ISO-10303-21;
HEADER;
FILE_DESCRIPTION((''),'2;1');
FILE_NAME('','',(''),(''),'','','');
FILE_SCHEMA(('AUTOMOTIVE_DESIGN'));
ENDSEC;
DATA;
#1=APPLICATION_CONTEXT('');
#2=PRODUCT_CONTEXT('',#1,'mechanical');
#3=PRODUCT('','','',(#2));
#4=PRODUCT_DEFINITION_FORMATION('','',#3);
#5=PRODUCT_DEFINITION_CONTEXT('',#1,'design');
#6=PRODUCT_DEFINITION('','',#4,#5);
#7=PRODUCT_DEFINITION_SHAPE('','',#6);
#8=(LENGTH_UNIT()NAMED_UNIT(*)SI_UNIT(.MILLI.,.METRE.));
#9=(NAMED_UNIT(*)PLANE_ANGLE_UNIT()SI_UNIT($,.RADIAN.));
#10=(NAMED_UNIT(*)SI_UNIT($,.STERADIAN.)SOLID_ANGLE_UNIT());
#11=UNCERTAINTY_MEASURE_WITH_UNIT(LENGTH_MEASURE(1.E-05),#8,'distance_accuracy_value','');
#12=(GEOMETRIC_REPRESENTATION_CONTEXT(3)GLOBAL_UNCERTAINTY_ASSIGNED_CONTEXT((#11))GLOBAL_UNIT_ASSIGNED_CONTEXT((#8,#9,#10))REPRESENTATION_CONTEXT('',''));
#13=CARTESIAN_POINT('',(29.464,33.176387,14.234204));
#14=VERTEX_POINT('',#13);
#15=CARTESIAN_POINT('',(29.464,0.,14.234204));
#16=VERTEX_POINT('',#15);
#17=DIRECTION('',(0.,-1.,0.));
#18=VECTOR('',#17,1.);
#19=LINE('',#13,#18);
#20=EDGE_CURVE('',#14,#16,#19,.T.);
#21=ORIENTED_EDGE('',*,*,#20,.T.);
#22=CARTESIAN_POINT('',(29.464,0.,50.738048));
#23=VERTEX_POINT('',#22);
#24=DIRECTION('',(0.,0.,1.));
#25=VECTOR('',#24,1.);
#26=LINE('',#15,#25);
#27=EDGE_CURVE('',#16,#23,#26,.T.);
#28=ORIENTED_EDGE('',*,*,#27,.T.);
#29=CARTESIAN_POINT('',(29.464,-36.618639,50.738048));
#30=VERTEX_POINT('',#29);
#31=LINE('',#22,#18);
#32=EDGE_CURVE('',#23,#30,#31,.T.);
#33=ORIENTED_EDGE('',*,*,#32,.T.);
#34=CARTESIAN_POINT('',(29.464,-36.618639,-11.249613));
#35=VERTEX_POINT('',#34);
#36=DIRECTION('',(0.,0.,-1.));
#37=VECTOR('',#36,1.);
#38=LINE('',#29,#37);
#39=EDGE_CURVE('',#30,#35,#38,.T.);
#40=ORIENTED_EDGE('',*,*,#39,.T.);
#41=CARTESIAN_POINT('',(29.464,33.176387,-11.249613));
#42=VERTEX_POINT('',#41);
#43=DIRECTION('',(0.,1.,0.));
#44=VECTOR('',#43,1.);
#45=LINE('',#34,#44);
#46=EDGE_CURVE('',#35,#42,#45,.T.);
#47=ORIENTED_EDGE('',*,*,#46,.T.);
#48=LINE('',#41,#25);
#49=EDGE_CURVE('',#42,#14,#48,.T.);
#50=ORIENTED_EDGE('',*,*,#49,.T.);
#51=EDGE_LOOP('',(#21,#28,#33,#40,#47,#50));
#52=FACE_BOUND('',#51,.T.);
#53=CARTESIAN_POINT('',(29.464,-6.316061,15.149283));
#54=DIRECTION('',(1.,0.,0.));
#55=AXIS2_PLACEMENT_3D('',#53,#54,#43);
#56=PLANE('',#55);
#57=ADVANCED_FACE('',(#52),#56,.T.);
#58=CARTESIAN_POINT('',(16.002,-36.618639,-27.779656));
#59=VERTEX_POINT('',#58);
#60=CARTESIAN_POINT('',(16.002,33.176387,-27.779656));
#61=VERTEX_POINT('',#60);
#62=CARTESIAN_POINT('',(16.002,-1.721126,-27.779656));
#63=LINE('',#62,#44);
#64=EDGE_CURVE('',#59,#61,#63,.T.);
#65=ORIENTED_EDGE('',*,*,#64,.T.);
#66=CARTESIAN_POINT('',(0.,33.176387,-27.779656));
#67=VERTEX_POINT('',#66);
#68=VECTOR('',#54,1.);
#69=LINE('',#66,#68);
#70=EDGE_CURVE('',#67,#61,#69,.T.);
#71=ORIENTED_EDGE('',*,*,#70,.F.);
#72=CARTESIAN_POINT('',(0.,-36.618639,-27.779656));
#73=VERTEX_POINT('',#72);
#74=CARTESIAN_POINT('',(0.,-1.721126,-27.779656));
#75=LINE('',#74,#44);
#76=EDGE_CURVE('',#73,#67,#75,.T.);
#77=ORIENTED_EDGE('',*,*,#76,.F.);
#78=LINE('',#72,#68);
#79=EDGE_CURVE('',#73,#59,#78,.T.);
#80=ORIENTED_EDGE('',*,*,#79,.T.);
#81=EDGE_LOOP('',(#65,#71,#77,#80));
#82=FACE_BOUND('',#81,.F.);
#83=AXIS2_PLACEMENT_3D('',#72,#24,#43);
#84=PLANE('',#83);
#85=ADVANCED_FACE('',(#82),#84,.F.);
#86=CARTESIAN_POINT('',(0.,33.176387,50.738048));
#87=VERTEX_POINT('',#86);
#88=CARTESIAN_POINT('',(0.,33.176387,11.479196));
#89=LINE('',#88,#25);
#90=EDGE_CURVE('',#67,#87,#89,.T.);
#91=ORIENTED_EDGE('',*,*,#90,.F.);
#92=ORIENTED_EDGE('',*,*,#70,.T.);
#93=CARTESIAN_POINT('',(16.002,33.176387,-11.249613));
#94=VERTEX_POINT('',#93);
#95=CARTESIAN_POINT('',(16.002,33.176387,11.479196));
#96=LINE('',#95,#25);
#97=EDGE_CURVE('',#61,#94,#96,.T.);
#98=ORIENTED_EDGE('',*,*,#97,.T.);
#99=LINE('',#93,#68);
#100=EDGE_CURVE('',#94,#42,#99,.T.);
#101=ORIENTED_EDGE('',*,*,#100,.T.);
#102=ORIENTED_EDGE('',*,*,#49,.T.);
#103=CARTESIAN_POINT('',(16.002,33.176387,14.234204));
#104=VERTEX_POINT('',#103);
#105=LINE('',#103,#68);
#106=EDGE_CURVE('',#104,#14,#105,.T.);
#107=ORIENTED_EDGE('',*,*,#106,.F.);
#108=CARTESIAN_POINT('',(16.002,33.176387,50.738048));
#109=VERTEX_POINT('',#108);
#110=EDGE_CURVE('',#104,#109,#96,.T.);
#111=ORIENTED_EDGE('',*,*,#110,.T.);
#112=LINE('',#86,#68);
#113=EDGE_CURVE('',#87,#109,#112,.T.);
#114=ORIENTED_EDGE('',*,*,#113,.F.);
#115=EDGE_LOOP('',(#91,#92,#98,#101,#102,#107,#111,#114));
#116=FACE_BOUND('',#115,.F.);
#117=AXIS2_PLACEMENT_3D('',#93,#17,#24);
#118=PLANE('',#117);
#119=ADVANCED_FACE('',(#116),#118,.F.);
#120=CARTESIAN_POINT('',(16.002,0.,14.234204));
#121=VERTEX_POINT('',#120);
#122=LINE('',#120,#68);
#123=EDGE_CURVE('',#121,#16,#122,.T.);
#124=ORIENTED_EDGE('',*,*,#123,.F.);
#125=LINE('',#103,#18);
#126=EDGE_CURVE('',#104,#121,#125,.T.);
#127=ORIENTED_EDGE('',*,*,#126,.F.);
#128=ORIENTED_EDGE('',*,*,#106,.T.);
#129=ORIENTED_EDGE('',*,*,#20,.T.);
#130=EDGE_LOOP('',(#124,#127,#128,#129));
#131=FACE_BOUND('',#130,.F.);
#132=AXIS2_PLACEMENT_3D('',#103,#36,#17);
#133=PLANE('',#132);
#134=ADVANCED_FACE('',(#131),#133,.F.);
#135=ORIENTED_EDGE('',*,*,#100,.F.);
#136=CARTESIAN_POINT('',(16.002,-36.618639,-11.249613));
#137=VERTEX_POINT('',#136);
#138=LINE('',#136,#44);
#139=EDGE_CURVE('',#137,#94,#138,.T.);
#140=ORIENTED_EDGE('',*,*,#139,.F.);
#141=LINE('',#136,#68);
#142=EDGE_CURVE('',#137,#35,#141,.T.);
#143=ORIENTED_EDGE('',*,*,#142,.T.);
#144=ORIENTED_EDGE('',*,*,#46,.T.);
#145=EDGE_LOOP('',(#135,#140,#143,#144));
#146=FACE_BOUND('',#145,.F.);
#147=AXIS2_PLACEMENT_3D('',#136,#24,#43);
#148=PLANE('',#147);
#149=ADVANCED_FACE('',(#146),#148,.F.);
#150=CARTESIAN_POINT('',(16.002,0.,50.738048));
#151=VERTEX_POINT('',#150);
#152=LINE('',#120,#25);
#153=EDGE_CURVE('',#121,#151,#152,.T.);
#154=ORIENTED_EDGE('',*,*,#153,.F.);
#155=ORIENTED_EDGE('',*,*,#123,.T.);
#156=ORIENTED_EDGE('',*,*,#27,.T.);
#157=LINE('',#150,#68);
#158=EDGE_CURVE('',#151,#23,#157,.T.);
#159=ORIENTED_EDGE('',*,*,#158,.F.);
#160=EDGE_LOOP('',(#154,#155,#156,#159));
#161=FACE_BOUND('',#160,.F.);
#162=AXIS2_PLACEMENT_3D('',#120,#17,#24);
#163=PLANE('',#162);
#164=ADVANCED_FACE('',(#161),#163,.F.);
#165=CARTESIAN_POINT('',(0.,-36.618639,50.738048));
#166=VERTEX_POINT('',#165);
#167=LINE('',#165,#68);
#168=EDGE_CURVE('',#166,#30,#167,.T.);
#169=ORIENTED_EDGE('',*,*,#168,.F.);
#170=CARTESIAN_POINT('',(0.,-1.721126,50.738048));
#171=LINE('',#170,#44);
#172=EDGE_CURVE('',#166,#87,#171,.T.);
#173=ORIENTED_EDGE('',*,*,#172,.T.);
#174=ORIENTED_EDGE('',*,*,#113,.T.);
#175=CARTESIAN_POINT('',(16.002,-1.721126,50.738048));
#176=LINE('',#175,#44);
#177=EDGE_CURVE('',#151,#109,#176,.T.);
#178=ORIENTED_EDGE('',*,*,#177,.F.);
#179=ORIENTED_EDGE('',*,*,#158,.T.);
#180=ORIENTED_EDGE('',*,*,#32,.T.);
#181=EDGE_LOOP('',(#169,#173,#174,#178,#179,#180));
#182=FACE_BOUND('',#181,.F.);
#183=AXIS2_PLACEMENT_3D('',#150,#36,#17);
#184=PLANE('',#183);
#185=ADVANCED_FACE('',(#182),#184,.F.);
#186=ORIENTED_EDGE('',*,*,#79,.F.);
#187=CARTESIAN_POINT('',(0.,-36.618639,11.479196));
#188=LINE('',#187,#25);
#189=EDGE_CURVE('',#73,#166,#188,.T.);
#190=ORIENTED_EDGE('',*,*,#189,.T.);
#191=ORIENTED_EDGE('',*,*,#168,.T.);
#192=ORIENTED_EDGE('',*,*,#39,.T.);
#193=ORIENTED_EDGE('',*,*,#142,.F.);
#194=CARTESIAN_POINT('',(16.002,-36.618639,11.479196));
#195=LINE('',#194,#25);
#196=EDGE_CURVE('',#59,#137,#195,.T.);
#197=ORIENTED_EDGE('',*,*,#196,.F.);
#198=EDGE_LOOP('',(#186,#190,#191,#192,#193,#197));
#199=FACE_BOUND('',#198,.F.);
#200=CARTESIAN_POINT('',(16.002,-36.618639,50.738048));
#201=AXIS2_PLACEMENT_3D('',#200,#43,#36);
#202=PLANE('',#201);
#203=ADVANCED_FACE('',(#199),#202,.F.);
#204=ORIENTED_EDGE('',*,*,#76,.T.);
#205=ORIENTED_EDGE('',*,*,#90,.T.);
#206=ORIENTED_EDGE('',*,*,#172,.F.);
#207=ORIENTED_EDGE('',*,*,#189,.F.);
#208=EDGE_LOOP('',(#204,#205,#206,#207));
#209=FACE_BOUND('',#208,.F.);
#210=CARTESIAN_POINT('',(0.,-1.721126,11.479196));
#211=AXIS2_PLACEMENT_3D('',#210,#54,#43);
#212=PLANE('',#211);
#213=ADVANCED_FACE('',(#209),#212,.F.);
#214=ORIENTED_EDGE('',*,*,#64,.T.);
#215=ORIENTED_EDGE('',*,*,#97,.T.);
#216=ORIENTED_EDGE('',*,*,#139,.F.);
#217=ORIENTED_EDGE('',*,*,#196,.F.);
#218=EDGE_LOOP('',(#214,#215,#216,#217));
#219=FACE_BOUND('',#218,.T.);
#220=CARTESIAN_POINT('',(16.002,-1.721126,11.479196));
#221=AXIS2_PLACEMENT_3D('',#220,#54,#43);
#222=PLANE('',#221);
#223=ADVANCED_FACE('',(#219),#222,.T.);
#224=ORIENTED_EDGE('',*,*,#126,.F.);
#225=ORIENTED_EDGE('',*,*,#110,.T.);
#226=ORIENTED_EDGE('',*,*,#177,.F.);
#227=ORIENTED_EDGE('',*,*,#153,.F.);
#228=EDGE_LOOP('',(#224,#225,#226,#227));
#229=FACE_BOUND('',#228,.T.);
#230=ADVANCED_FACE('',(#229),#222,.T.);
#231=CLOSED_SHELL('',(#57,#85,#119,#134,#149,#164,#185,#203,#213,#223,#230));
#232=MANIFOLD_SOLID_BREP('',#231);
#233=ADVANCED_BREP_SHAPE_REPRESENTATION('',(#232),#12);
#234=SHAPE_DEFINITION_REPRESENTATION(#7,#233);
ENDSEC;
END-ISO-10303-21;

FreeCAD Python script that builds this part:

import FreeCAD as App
import Part
import Sketcher

V = App.Vector
Q = App.Units.Quantity

doc = App.newDocument("Part")
body = doc.addObject("PartDesign::Body", "Body")

# Sketch on YZ plane
sketch1 = body.newObject("Sketcher::SketchObject", "Sketch")
sketch1.AttachmentSupport = (doc.getObject("YZ_Plane"), [""])
sketch1.MapMode = "FlatFace"
sketch1.addGeometry(Part.LineSegment(V(-37, 51, 0), V(-37, -28, 0)), False)
sketch1.addGeometry(Part.LineSegment(V(-37, -28, 0), V(33, -28, 0)), False)
sketch1.addGeometry(Part.LineSegment(V(33, -28, 0), V(33, 51, 0)), False)
sketch1.addGeometry(Part.LineSegment(V(33, 51, 0), V(-37, 51, 0)), False)
sketch1.addConstraint(Sketcher.Constraint("Coincident", 0, 2, 1, 1))
sketch1.addConstraint(Sketcher.Constraint("Coincident", 1, 2, 2, 1))
sketch1.addConstraint(Sketcher.Constraint("Coincident", 2, 2, 3, 1))
sketch1.addConstraint(Sketcher.Constraint("Coincident", 3, 2, 0, 1))
sketch1.addConstraint(Sketcher.Constraint("Vertical", 0))
sketch1.addConstraint(Sketcher.Constraint("Horizontal", 1))
sketch1.addConstraint(Sketcher.Constraint("Vertical", 2))
sketch1.addConstraint(Sketcher.Constraint("Horizontal", 3))
sketch1.addConstraint(Sketcher.Constraint("DistanceX", 1, 1, 1, 2, 69.795026))
sketch1.addConstraint(Sketcher.Constraint("DistanceY", 0, 2, 0, 1, 78.517704))
sketch1.addConstraint(Sketcher.Constraint("DistanceX", 0, 2, -1, 1, 36.618639))
sketch1.addConstraint(Sketcher.Constraint("DistanceY", 0, 2, -1, 1, 27.779656))
pad1 = body.newObject("PartDesign::Pad", "Pad")
pad1.Profile = sketch1
pad1.Length = Q("0.63 in")

# Sketch on YZ plane
sketch2 = body.newObject("Sketcher::SketchObject", "Sketch001")
sketch2.AttachmentSupport = (doc.getObject("YZ_Plane"), [""])
sketch2.MapMode = "FlatFace"
sketch2.AttachmentOffset = App.Placement(V(0, 0, 0.63 * 25.4), App.Rotation())
sketch2.addGeometry(Part.LineSegment(V(0, 14, 0), V(0, 51, 0)), False)
sketch2.addGeometry(Part.LineSegment(V(0, 51, 0), V(-37, 51, 0)), False)
sketch2.addGeometry(Part.LineSegment(V(-37, 51, 0), V(-37, -11, 0)), False)
sketch2.addGeometry(Part.LineSegment(V(-37, -11, 0), V(33, -11, 0)), False)
sketch2.addGeometry(Part.LineSegment(V(33, -11, 0), V(33, 14, 0)), False)
sketch2.addGeometry(Part.LineSegment(V(33, 14, 0), V(0, 14, 0)), False)
sketch2.addConstraint(Sketcher.Constraint("Coincident", 0, 2, 1, 1))
sketch2.addConstraint(Sketcher.Constraint("Coincident", 1, 2, 2, 1))
sketch2.addConstraint(Sketcher.Constraint("Coincident", 2, 2, 3, 1))
sketch2.addConstraint(Sketcher.Constraint("Coincident", 3, 2, 4, 1))
sketch2.addConstraint(Sketcher.Constraint("Coincident", 4, 2, 5, 1))
sketch2.addConstraint(Sketcher.Constraint("Coincident", 5, 2, 0, 1))
sketch2.addConstraint(Sketcher.Constraint("Vertical", 0))
sketch2.addConstraint(Sketcher.Constraint("Horizontal", 1))
sketch2.addConstraint(Sketcher.Constraint("Vertical", 2))
sketch2.addConstraint(Sketcher.Constraint("Horizontal", 3))
sketch2.addConstraint(Sketcher.Constraint("Vertical", 4))
sketch2.addConstraint(Sketcher.Constraint("Horizontal", 5))
sketch2.addConstraint(Sketcher.Constraint("PointOnObject", 0, 2, -2))
sketch2.addConstraint(Sketcher.Constraint("DistanceY", 4, 1, 4, 2, Q("1.0032999 in")))
sketch2.addConstraint(Sketcher.Constraint("DistanceX", 1, 2, 1, 1, 36.618639))
sketch2.addConstraint(Sketcher.Constraint("DistanceY", 2, 2, 2, 1, 61.987661))
sketch2.addConstraint(Sketcher.Constraint("DistanceX", 3, 1, 3, 2, 69.795026))
sketch2.addConstraint(Sketcher.Constraint("DistanceY", -1, 1, 0, 2, 50.738048))
pad2 = body.newObject("PartDesign::Pad", "Pad001")
pad2.Profile = sketch2
pad2.Length = Q("0.53 in")

doc.recompute()
